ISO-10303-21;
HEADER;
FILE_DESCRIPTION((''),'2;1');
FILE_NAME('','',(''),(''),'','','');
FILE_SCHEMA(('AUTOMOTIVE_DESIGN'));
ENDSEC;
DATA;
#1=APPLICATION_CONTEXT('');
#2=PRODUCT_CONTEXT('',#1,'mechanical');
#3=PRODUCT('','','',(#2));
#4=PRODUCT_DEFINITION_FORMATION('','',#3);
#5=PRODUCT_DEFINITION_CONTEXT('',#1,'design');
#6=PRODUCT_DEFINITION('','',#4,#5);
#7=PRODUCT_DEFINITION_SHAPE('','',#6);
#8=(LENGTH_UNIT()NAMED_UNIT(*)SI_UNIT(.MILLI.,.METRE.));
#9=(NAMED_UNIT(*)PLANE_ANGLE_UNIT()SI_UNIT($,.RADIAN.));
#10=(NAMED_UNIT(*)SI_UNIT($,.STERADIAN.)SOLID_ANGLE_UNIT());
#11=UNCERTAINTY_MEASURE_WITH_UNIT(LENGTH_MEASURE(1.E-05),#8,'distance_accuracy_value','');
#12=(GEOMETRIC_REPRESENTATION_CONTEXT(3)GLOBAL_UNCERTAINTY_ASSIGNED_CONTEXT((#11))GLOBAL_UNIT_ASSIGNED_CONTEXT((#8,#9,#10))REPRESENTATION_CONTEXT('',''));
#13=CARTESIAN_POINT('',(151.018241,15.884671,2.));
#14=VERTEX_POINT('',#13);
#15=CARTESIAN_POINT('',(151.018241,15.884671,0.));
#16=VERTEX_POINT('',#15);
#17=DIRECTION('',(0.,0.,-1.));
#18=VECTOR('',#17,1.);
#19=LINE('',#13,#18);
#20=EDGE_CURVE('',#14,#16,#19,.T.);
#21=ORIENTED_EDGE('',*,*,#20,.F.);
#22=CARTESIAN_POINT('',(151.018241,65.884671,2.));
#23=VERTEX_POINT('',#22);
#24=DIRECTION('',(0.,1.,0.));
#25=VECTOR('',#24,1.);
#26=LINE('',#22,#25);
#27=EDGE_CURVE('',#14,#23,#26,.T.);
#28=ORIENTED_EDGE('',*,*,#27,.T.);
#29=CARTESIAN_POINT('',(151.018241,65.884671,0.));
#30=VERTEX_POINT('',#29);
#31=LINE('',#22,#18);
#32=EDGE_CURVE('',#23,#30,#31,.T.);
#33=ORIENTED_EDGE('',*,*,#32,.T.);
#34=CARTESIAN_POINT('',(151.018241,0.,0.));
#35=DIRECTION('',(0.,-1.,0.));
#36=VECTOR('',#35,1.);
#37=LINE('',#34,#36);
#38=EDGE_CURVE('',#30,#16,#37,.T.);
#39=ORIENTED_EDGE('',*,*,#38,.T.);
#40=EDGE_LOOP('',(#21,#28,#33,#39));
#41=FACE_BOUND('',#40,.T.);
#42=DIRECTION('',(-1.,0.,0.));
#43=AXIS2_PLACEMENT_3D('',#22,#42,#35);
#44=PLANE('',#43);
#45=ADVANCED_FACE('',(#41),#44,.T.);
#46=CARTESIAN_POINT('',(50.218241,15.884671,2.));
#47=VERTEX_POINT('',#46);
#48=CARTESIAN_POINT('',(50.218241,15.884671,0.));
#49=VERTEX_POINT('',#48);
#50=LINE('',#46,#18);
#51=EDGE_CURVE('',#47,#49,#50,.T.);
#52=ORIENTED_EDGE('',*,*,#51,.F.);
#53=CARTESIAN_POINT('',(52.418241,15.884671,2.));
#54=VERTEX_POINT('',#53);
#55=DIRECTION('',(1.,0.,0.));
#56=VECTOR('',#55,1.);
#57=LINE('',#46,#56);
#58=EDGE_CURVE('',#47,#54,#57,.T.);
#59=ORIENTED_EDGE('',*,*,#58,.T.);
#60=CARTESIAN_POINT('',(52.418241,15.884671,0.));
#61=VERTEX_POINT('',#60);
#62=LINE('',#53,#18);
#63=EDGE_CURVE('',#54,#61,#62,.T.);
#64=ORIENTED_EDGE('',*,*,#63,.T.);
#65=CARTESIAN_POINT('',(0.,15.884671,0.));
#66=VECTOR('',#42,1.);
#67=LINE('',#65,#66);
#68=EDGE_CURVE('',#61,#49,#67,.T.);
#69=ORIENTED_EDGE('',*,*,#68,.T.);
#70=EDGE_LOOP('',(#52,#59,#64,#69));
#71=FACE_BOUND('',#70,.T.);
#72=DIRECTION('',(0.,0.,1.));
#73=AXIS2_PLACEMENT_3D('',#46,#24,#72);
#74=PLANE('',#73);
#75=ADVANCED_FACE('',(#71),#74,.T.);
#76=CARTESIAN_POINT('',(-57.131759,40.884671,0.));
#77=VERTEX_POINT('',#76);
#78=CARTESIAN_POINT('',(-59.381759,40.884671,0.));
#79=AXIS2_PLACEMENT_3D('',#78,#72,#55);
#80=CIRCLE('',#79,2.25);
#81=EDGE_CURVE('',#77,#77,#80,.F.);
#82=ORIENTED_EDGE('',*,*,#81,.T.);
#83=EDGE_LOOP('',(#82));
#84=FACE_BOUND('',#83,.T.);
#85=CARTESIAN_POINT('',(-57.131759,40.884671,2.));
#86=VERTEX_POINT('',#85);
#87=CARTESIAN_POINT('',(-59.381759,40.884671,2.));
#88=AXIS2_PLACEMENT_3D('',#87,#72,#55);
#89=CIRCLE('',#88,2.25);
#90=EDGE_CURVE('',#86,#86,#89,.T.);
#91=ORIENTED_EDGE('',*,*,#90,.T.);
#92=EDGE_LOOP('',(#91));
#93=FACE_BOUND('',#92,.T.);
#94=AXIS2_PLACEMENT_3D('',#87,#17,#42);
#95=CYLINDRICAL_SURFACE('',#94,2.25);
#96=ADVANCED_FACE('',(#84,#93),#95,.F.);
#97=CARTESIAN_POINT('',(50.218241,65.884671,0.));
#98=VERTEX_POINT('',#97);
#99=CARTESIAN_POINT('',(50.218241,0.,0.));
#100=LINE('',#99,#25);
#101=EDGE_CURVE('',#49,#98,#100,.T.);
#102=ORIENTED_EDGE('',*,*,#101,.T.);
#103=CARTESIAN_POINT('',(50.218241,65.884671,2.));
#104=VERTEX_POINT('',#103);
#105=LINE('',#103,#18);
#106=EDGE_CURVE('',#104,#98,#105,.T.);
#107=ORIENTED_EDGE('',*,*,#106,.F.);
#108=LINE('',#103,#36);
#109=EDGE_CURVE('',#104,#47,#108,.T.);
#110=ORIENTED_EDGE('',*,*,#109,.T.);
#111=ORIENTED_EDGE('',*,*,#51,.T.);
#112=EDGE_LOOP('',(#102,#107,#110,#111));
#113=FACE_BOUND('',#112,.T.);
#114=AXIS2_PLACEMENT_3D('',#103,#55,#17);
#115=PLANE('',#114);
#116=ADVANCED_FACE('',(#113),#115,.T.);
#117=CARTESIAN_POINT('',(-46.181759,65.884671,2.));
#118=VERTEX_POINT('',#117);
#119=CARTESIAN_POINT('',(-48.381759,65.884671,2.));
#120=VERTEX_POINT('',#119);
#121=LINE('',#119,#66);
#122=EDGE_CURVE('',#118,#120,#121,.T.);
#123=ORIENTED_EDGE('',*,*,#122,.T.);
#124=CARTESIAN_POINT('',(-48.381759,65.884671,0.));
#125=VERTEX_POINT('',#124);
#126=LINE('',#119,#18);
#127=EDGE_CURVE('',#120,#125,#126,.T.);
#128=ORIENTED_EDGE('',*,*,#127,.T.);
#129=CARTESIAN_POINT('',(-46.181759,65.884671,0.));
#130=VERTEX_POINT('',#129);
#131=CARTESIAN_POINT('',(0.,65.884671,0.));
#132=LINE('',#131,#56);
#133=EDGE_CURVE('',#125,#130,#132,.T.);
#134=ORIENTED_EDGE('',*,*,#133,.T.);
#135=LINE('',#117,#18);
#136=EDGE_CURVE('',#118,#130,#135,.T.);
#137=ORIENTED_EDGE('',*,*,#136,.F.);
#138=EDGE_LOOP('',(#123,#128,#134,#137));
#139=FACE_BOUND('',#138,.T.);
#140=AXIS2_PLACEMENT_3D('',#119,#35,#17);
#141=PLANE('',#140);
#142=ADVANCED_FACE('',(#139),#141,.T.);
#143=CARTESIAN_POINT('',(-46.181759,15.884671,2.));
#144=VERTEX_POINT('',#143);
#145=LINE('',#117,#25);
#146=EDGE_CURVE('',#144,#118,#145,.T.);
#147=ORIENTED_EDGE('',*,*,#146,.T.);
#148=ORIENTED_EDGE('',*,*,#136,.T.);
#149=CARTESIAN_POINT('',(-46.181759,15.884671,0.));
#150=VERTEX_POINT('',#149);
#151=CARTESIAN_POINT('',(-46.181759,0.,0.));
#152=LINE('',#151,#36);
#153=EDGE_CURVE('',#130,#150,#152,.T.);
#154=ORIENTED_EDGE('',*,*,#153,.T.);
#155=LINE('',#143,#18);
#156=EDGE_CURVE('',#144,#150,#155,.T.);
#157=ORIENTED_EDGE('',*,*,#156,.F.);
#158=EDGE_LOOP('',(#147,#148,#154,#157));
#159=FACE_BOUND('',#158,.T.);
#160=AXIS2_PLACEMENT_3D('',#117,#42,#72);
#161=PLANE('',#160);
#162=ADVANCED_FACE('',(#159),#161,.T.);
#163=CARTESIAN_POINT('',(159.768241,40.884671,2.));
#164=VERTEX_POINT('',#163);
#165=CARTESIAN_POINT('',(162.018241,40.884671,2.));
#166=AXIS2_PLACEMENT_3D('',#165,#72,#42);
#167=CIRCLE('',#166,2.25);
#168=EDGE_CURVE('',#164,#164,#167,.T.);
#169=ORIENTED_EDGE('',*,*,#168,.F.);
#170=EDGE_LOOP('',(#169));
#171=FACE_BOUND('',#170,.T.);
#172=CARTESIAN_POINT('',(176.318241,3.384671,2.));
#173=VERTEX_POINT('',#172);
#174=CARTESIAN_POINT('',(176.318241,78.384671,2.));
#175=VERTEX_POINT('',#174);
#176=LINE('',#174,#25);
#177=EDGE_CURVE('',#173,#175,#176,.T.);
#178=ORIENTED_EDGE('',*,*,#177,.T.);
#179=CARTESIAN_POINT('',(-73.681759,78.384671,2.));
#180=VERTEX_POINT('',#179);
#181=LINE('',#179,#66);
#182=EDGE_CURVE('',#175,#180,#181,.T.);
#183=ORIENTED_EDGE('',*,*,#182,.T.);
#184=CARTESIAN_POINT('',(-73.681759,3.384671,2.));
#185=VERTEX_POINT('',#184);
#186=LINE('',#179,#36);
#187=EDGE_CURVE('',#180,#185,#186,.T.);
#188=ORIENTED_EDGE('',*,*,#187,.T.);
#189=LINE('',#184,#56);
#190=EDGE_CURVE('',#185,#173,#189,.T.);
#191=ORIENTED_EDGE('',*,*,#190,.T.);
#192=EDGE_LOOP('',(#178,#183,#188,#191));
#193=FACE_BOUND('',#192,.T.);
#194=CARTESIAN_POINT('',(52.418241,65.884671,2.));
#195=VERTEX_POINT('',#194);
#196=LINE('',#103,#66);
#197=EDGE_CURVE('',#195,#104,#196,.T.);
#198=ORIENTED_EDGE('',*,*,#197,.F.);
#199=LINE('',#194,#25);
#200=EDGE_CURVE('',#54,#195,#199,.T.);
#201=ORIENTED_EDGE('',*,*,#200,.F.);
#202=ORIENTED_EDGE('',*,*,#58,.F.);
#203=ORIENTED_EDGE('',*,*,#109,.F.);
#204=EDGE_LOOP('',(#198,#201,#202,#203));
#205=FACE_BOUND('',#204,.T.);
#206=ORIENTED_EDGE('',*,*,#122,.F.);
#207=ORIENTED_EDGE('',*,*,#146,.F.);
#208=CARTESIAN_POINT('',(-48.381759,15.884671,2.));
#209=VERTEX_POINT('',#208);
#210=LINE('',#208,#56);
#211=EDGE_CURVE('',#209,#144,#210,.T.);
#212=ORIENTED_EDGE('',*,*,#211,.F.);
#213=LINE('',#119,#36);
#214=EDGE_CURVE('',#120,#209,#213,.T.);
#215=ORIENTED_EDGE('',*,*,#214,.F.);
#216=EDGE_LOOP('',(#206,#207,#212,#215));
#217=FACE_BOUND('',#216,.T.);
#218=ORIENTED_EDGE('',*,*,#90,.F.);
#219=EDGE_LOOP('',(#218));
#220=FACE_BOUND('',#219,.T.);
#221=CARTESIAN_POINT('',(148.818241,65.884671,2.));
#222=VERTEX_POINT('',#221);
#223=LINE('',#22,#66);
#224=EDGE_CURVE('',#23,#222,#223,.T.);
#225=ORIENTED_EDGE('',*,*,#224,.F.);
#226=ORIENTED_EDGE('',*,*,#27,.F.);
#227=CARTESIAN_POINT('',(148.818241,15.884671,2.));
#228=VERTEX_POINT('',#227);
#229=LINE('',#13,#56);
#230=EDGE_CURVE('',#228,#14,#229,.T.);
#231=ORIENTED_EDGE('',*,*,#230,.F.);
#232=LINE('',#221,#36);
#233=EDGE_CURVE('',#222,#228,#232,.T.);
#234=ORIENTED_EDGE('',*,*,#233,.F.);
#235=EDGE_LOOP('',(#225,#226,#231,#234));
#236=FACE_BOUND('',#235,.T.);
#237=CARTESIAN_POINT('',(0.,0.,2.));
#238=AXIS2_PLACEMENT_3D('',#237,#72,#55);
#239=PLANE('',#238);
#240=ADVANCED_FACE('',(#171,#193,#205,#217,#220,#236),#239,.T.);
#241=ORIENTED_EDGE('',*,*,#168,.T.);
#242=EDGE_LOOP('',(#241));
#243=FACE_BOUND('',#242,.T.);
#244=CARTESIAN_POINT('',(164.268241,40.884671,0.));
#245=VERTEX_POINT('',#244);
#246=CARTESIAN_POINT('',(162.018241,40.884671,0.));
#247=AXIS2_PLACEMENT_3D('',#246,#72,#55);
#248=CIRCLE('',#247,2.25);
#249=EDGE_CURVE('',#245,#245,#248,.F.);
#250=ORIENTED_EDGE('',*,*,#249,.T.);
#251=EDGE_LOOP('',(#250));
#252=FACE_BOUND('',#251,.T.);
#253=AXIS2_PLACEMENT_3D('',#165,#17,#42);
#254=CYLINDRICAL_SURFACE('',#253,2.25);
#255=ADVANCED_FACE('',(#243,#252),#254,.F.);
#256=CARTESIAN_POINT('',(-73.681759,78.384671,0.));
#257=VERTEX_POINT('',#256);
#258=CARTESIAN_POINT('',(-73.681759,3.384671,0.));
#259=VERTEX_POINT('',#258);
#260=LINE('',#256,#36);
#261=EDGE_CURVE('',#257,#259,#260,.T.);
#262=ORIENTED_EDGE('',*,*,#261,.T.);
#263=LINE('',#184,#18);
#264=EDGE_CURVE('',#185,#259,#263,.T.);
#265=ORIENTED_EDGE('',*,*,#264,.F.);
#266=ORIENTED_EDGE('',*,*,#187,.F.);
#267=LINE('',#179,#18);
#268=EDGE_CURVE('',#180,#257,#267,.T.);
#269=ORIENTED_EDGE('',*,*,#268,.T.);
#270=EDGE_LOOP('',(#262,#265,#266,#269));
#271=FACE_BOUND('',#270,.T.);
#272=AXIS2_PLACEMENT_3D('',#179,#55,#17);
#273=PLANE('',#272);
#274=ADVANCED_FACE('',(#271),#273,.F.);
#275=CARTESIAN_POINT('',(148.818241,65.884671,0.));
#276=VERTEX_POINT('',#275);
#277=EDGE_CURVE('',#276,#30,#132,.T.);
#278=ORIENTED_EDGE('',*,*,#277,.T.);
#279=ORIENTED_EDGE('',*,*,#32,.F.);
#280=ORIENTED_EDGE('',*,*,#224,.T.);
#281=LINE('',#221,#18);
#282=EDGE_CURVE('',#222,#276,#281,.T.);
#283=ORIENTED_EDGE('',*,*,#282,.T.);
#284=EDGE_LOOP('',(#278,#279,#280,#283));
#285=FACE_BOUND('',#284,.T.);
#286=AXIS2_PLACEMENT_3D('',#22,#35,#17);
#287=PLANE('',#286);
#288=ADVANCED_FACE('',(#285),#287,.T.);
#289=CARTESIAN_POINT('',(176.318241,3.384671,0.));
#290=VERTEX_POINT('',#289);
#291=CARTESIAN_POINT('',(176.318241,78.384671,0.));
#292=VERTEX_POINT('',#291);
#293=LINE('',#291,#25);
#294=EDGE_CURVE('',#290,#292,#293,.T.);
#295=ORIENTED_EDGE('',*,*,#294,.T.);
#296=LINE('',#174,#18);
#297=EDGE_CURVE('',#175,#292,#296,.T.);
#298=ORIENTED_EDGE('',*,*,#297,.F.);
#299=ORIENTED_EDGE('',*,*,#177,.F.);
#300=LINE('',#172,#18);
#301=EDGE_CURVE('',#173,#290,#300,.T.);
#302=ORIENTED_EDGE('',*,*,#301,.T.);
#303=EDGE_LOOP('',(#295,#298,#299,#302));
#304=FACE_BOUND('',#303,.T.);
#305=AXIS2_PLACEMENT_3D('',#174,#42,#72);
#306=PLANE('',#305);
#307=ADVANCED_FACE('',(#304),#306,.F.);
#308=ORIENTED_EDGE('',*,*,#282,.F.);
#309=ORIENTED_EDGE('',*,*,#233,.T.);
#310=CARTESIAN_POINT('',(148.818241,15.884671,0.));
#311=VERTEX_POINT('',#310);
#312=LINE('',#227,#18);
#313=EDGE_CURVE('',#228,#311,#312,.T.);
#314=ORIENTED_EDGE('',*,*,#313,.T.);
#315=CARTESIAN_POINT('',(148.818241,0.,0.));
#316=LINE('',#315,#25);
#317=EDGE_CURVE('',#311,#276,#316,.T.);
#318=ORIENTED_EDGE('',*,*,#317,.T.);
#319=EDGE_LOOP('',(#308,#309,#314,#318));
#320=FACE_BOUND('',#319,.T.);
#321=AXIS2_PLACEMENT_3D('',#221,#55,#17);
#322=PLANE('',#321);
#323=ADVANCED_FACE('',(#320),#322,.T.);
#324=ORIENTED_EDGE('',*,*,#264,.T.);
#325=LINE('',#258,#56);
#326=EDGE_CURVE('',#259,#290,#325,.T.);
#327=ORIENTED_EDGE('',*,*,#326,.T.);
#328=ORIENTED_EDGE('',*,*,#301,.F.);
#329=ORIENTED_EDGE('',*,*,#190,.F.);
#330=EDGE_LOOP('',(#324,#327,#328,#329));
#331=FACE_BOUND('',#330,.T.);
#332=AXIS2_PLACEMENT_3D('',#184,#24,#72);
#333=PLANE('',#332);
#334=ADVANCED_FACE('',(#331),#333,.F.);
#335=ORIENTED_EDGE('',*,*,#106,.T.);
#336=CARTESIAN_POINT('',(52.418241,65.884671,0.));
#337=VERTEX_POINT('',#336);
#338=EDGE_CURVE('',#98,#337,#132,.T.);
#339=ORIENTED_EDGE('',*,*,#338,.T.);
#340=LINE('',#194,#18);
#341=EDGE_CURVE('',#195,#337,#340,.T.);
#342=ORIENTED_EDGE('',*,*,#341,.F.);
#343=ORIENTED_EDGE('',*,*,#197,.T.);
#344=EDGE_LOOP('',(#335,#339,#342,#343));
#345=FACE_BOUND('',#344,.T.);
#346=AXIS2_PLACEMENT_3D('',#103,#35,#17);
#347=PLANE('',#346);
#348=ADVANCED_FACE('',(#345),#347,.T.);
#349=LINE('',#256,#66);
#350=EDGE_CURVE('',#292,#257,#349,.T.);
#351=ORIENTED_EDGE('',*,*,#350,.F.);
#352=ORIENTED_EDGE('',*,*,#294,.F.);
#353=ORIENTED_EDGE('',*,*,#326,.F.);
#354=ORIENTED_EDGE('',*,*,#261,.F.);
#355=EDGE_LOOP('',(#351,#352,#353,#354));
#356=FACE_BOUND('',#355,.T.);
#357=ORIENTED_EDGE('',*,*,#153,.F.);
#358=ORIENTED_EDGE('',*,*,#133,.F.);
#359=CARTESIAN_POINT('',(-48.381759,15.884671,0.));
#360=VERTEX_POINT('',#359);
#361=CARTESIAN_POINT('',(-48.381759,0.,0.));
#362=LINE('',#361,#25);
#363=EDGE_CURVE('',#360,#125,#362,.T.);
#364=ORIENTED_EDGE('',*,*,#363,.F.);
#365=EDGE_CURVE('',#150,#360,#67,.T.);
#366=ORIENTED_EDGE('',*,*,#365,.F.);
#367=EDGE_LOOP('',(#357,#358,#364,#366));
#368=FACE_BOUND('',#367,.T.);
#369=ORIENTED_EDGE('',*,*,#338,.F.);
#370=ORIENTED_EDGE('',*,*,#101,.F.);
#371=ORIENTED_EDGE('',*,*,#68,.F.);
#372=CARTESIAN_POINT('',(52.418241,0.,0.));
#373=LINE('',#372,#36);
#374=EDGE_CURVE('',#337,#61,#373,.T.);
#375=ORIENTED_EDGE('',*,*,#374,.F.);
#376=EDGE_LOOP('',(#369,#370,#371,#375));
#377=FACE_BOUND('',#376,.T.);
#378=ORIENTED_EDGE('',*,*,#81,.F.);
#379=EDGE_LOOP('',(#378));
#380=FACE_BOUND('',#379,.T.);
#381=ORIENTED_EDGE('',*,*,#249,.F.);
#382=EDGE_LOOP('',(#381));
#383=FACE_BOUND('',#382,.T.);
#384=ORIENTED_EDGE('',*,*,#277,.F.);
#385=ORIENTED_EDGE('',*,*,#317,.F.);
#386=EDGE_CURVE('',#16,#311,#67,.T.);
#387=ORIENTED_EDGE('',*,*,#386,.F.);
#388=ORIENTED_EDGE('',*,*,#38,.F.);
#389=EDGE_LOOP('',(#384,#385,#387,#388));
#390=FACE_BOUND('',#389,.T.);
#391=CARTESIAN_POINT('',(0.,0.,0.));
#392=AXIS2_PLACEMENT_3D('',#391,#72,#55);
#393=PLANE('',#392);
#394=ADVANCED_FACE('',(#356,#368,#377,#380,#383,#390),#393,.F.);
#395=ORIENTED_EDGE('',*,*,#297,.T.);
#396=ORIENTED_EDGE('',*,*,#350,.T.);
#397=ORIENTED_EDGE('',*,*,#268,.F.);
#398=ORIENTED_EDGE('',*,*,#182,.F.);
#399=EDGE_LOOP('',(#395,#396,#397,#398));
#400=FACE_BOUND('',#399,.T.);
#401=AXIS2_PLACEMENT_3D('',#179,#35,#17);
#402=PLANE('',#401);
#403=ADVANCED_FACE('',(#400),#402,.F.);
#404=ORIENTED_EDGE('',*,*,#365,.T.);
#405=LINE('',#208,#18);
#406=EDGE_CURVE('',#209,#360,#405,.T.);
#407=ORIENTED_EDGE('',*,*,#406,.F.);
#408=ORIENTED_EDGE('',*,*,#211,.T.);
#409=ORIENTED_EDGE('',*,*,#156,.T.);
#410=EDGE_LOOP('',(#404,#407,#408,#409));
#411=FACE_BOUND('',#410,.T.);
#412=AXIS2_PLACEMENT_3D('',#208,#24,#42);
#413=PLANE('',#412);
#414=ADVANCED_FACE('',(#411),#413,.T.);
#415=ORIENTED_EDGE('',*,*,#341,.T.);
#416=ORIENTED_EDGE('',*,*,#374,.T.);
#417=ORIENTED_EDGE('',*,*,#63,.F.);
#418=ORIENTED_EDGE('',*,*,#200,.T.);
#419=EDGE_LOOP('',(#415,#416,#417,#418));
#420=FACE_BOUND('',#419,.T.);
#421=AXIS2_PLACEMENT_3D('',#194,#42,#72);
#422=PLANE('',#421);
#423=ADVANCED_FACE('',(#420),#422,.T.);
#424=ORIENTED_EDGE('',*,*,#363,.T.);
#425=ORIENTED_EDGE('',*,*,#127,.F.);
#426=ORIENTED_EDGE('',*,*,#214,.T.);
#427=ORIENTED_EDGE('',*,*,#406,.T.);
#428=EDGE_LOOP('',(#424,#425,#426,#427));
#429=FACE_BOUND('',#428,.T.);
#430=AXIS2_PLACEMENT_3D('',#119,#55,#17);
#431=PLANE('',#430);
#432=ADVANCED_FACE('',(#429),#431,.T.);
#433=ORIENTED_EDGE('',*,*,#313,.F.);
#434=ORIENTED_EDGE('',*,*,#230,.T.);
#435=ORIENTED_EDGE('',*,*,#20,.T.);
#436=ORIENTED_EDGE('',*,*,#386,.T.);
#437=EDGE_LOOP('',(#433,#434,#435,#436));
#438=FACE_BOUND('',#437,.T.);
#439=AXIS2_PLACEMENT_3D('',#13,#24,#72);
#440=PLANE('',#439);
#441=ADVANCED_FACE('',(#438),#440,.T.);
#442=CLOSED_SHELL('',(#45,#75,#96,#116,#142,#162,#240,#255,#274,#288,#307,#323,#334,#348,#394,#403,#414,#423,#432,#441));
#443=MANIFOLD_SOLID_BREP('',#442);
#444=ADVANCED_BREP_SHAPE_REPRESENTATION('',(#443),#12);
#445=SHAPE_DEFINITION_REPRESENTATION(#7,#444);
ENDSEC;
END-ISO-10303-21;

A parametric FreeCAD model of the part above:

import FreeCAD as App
import Part
import Sketcher
from FreeCAD import Vector

doc = App.newDocument("Part")
body = doc.addObject("PartDesign::Body", "Body")

# Sketch on XY plane
sketch1 = body.newObject("Sketcher::SketchObject", "Sketch")
sketch1.AttachmentSupport = (doc.getObject("XY_Plane"), [""])
sketch1.MapMode = "FlatFace"
sketch1.addGeometry([
    Part.LineSegment(Vector(-74, 78, 0), Vector(-74, 3, 0)),
    Part.LineSegment(Vector(-74, 3, 0), Vector(176, 3, 0)),
    Part.LineSegment(Vector(176, 3, 0), Vector(176, 78, 0)),
    Part.LineSegment(Vector(176, 78, 0), Vector(-74, 78, 0)),
], False)
sketch1.addConstraint([
    Sketcher.Constraint("Coincident", 0, 2, 1, 1),
    Sketcher.Constraint("Coincident", 1, 2, 2, 1),
    Sketcher.Constraint("Coincident", 2, 2, 3, 1),
    Sketcher.Constraint("Coincident", 3, 2, 0, 1),
    Sketcher.Constraint("Vertical", 0),
    Sketcher.Constraint("Horizontal", 1),
    Sketcher.Constraint("Vertical", 2),
    Sketcher.Constraint("Horizontal", 3),
    Sketcher.Constraint("DistanceX", 1, 1, 1, 2, 250.0),
    Sketcher.Constraint("DistanceY", 0, 2, 0, 1, 75.0),
    Sketcher.Constraint("DistanceX", 0, 2, -1, 1, 73.681759),
    Sketcher.Constraint("DistanceY", -1, 1, 0, 2, 3.384671),
])
pad1 = body.newObject("PartDesign::Pad", "Pad")
pad1.Profile = sketch1
pad1.Length = 2

# Sketch on XY plane
sketch2 = body.newObject("Sketcher::SketchObject", "Sketch001")
sketch2.AttachmentSupport = (doc.getObject("XY_Plane"), [""])
sketch2.MapMode = "FlatFace"
sketch2.addGeometry([
    Part.LineSegment(Vector(148.8, 65.9, 0), Vector(148.8, 15.9, 0)),  # 0
    Part.LineSegment(Vector(148.8, 15.9, 0), Vector(151, 15.9, 0)),  # 1
    Part.LineSegment(Vector(151, 15.9, 0), Vector(151, 65.9, 0)),  # 2
    Part.LineSegment(Vector(151, 65.9, 0), Vector(148.8, 65.9, 0)),  # 3
    Part.LineSegment(Vector(-48.4, 65.9, 0), Vector(-48.4, 15.9, 0)),  # 4
    Part.LineSegment(Vector(-48.4, 15.9, 0), Vector(-46.2, 15.9, 0)),  # 5
    Part.LineSegment(Vector(-46.2, 15.9, 0), Vector(-46.2, 65.9, 0)),  # 6
    Part.LineSegment(Vector(-46.2, 65.9, 0), Vector(-48.4, 65.9, 0)),  # 7
    Part.LineSegment(Vector(50.2, 65.9, 0), Vector(50.2, 15.9, 0)),  # 8
    Part.LineSegment(Vector(50.2, 15.9, 0), Vector(52.4, 15.9, 0)),  # 9
    Part.LineSegment(Vector(52.4, 15.9, 0), Vector(52.4, 65.9, 0)),  # 10
    Part.LineSegment(Vector(52.4, 65.9, 0), Vector(50.2, 65.9, 0)),  # 11
], False)
sketch2.addConstraint([
    Sketcher.Constraint("Coincident", 0, 2, 1, 1),
    Sketcher.Constraint("Coincident", 1, 2, 2, 1),
    Sketcher.Constraint("Coincident", 2, 2, 3, 1),
    Sketcher.Constraint("Coincident", 3, 2, 0, 1),
    Sketcher.Constraint("Coincident", 4, 2, 5, 1),
    Sketcher.Constraint("Coincident", 5, 2, 6, 1),
    Sketcher.Constraint("Coincident", 6, 2, 7, 1),
    Sketcher.Constraint("Coincident", 7, 2, 4, 1),
    Sketcher.Constraint("Coincident", 8, 2, 9, 1),
    Sketcher.Constraint("Coincident", 9, 2, 10, 1),
    Sketcher.Constraint("Coincident", 10, 2, 11, 1),
    Sketcher.Constraint("Coincident", 11, 2, 8, 1),
    Sketcher.Constraint("Vertical", 0),
    Sketcher.Constraint("Horizontal", 1),
    Sketcher.Constraint("Vertical", 2),
    Sketcher.Constraint("Horizontal", 3),
    Sketcher.Constraint("Vertical", 4),
    Sketcher.Constraint("Horizontal", 5),
    Sketcher.Constraint("Vertical", 6),
    Sketcher.Constraint("Horizontal", 7),
    Sketcher.Constraint("Vertical", 8),
    Sketcher.Constraint("Horizontal", 9),
    Sketcher.Constraint("Vertical", 10),
    Sketcher.Constraint("Horizontal", 11),
    Sketcher.Constraint("Horizontal", 1, 2, 4, 2),
    Sketcher.Constraint("Horizontal", 3, 2, 6, 2),
    Sketcher.Constraint("Horizontal", 5, 2, 8, 2),
    Sketcher.Constraint("Horizontal", 7, 2, 10, 2),
    Sketcher.Constraint("Equal", 3, 5),
    Sketcher.Constraint("Equal", 7, 9),
    Sketcher.Constraint("DistanceY", 0, 2, 0, 1, 50.0),
    Sketcher.Constraint("DistanceX", 1, 1, 1, 2, 2.2),
    Sketcher.Constraint("DistanceX", 5, 2, 0, 2, 195.0),
    Sketcher.Constraint("DistanceX", 5, 2, 8, 2, 96.4),
    Sketcher.Constraint("DistanceX", -1, 1, 0, 2, 148.818241),
    Sketcher.Constraint("DistanceY", -1, 1, 0, 2, 15.884671),
])
pocket1 = body.newObject("PartDesign::Pocket", "Pocket")
pocket1.Profile = sketch2
pocket1.Type = "ThroughAll"
pocket1.Midplane = True

# Sketch on XY plane
sketch3 = body.newObject("Sketcher::SketchObject", "Sketch002")
sketch3.AttachmentSupport = (doc.getObject("XY_Plane"), [""])
sketch3.MapMode = "FlatFace"
sketch3.addGeometry([
    Part.Circle(Vector(-59.4, 40.9, 0), Vector(0, 0, 1), 2.2),
    Part.Circle(Vector(162, 40.9, 0), Vector(0, 0, 1), 2.2),
], False)
sketch3.addConstraint([
    Sketcher.Constraint("Equal", 0, 1),
    Sketcher.Constraint("Horizontal", 0, 3, 1, 3),
    Sketcher.Constraint("Diameter", 0, 4.5),
    Sketcher.Constraint("DistanceX", 0, 3, 1, 3, 221.4),
    Sketcher.Constraint("DistanceX", 0, 3, -1, 1, 59.381759),
    Sketcher.Constraint("DistanceY", -1, 1, 0, 3, 40.884671),
])
pocket2 = body.newObject("PartDesign::Pocket", "Pocket001")
pocket2.Profile = sketch3
pocket2.Type = "ThroughAll"
pocket2.Midplane = True

doc.recompute()
